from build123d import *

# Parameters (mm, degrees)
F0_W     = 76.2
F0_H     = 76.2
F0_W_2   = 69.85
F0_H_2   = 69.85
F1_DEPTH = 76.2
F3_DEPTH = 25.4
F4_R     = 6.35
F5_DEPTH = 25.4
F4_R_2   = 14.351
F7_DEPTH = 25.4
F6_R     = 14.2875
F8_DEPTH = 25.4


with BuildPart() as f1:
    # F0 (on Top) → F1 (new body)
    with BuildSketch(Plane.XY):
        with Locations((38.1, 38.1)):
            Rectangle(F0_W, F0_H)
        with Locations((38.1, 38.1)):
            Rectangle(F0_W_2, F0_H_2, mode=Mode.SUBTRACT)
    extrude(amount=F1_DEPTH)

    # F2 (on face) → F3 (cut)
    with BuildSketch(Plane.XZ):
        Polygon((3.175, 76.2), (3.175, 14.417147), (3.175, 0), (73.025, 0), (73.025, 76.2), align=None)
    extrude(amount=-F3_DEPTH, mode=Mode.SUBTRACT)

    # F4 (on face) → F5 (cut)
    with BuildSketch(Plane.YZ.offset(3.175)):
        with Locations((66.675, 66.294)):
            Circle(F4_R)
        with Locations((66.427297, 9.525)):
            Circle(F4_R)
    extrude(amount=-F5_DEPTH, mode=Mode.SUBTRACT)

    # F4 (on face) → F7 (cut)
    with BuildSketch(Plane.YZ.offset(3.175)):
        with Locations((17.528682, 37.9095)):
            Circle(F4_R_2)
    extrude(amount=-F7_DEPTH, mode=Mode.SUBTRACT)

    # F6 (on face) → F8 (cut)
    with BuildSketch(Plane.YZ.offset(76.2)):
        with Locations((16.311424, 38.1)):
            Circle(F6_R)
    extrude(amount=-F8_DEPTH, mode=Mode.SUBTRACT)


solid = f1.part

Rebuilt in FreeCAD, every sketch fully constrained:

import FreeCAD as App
import Part
import Sketcher

V = App.Vector
Q = App.Units.Quantity

doc = App.newDocument("Part")
body = doc.addObject("PartDesign::Body", "Body")

sketch1 = doc.addObject("Sketcher::SketchObject", "Sketch")
body.addObject(sketch1)
sketch1.AttachmentSupport = (doc.XY_Plane, [""])
sketch1.MapMode = "FlatFace"
sketch1.addGeometry([
    Part.LineSegment(V(0, 76.2, 0), V(0, 0, 0)),
    Part.LineSegment(V(0, 0, 0), V(76.2, 0, 0)),
    Part.LineSegment(V(76.2, 0, 0), V(76.2, 76.2, 0)),
    Part.LineSegment(V(76.2, 76.2, 0), V(0, 76.2, 0)),
    Part.LineSegment(V(73.025, 3.175, 0), V(3.175, 3.175, 0)),
    Part.LineSegment(V(3.175, 3.175, 0), V(3.175, 73.025, 0)),
    Part.LineSegment(V(3.175, 73.025, 0), V(73.025, 73.025, 0)),
    Part.LineSegment(V(73.025, 73.025, 0), V(73.025, 3.175, 0)),
], False)
sketch1.addConstraint([
    Sketcher.Constraint("Coincident", 0, 2, 1, 1),
    Sketcher.Constraint("Coincident", 1, 2, 2, 1),
    Sketcher.Constraint("Coincident", 2, 2, 3, 1),
    Sketcher.Constraint("Coincident", 3, 2, 0, 1),
    Sketcher.Constraint("Coincident", 4, 2, 5, 1),
    Sketcher.Constraint("Coincident", 5, 2, 6, 1),
    Sketcher.Constraint("Coincident", 6, 2, 7, 1),
    Sketcher.Constraint("Coincident", 7, 2, 4, 1),
    Sketcher.Constraint("Vertical", 0),
    Sketcher.Constraint("Horizontal", 1),
    Sketcher.Constraint("Vertical", 2),
    Sketcher.Constraint("Horizontal", 3),
    Sketcher.Constraint("Horizontal", 4),
    Sketcher.Constraint("Vertical", 5),
    Sketcher.Constraint("Horizontal", 6),
    Sketcher.Constraint("Vertical", 7),
    Sketcher.Constraint("Coincident", 0, 2, -1, 1),
    Sketcher.Constraint("Equal", 3, 0),
    Sketcher.Constraint("Equal", 6, 5),
    Sketcher.Constraint("DistanceX", 1, 1, 1, 2, Q("3 in")),
    Sketcher.Constraint("DistanceX", 4, 2, 4, 1, Q("2.75 in")),
    Sketcher.Constraint("DistanceX", -1, 1, 4, 2, Q("0.125 in")),
    Sketcher.Constraint("DistanceY", -1, 1, 4, 2, Q("0.125 in")),
])
pad1 = doc.addObject("PartDesign::Pad", "Pad")
body.addObject(pad1)
pad1.Profile = sketch1
pad1.Length = Q("3 in")

sketch2 = doc.addObject("Sketcher::SketchObject", "Sketch001")
body.addObject(sketch2)
sketch2.AttachmentSupport = (doc.XZ_Plane, [""])
sketch2.MapMode = "FlatFace"
sketch2.addGeometry([
    Part.LineSegment(V(3.175, 76.2, 0), V(3.175, 0, 0)),
    Part.LineSegment(V(3.175, 0, 0), V(73.025, 0, 0)),
    Part.LineSegment(V(73.025, 0, 0), V(73.025, 76.2, 0)),
    Part.LineSegment(V(73.025, 76.2, 0), V(3.175, 76.2, 0)),
], False)
sketch2.addConstraint([
    Sketcher.Constraint("Coincident", 0, 2, 1, 1),
    Sketcher.Constraint("Coincident", 1, 2, 2, 1),
    Sketcher.Constraint("Coincident", 2, 2, 3, 1),
    Sketcher.Constraint("Coincident", 3, 2, 0, 1),
    Sketcher.Constraint("Vertical", 0),
    Sketcher.Constraint("Horizontal", 1),
    Sketcher.Constraint("Vertical", 2),
    Sketcher.Constraint("Horizontal", 3),
    Sketcher.Constraint("PointOnObject", 0, 2, -1),
    Sketcher.Constraint("DistanceY", 0, 2, 0, 1, Q("3 in")),
    Sketcher.Constraint("DistanceX", 1, 1, 1, 2, Q("2.75 in")),
    Sketcher.Constraint("DistanceX", -1, 1, 0, 2, Q("0.125 in")),
])
pocket1 = doc.addObject("PartDesign::Pocket", "Pocket")
body.addObject(pocket1)
pocket1.Profile = sketch2
pocket1.Length = Q("1 in")

sketch3 = doc.addObject("Sketcher::SketchObject", "Sketch002")
body.addObject(sketch3)
sketch3.AttachmentSupport = (doc.YZ_Plane, [""])
sketch3.MapMode = "FlatFace"
sketch3.AttachmentOffset = App.Placement(V(0, 0, 0.125 * 25.4), App.Rotation())
sketch3.addGeometry([
    Part.Circle(V(66.675, 66.294, 0), V(0, 0, 1), 6.35),
    Part.Circle(V(66.427297, 9.525, 0), V(0, 0, 1), 6.35),
], False)
sketch3.addConstraint([
    Sketcher.Constraint("Equal", 0, 1),
    Sketcher.Constraint("Diameter", 0, Q("0.5 in")),
    Sketcher.Constraint("DistanceY", -1, 1, 0, 3, Q("2.61 in")),
    Sketcher.Constraint("DistanceX", -1, 1, 0, 3, Q("2.625 in")),
    Sketcher.Constraint("DistanceY", -1, 1, 1, 3, Q("0.375 in")),
    Sketcher.Constraint("DistanceX", -1, 1, 1, 3, 66.427297),
])
pocket2 = doc.addObject("PartDesign::Pocket", "Pocket001")
body.addObject(pocket2)
pocket2.Profile = sketch3
pocket2.Length = Q("1 in")

sketch4 = doc.addObject("Sketcher::SketchObject", "Sketch003")
body.addObject(sketch4)
sketch4.AttachmentSupport = (doc.YZ_Plane, [""])
sketch4.MapMode = "FlatFace"
sketch4.AttachmentOffset = App.Placement(V(0, 0, 0.125 * 25.4), App.Rotation())
sketch4.addGeometry(Part.Circle(V(17.528682, 37.9095, 0), V(0, 0, 1), 14.351), False)
sketch4.addConstraint([
    Sketcher.Constraint("Diameter", 0, Q("1.13 in")),
    Sketcher.Constraint("DistanceY", -1, 1, 0, 3, Q("1.4925 in")),
    Sketcher.Constraint("DistanceX", -1, 1, 0, 3, 17.528682),
])
pocket3 = doc.addObject("PartDesign::Pocket", "Pocket002")
body.addObject(pocket3)
pocket3.Profile = sketch4
pocket3.Length = Q("1 in")

sketch5 = doc.addObject("Sketcher::SketchObject", "Sketch004")
body.addObject(sketch5)
sketch5.AttachmentSupport = (doc.YZ_Plane, [""])
sketch5.MapMode = "FlatFace"
sketch5.AttachmentOffset = App.Placement(V(0, 0, 3 * 25.4), App.Rotation())
sketch5.addGeometry(Part.Circle(V(16.311424, 38.1, 0), V(0, 0, 1), 14.2875), False)
sketch5.addConstraint([
    Sketcher.Constraint("Diameter", 0, Q("1.125 in")),
    Sketcher.Constraint("DistanceY", -1, 1, 0, 3, Q("1.5 in")),
    Sketcher.Constraint("DistanceX", -1, 1, 0, 3, 16.311424),
])
pocket4 = doc.addObject("PartDesign::Pocket", "Pocket003")
body.addObject(pocket4)
pocket4.Profile = sketch5
pocket4.Length = Q("1 in")

doc.recompute()
